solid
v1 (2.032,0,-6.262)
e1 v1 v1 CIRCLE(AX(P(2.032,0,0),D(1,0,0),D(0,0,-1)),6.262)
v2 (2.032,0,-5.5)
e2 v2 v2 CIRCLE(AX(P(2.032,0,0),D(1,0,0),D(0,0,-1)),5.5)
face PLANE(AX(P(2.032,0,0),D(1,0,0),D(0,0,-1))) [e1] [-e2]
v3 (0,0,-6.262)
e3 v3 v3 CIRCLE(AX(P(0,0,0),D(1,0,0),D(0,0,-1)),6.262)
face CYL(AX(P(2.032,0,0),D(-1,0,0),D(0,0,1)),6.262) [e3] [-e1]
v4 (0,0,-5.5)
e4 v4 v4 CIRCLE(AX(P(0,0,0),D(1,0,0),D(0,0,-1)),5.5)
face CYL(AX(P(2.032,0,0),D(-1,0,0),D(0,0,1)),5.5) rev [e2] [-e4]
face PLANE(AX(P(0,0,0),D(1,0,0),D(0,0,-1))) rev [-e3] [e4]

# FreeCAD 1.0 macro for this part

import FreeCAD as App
import Part
import Sketcher

V = App.Vector

doc = App.newDocument("Part")
body = doc.addObject("PartDesign::Body", "Body")

# Sketch on YZ plane
sketch1 = body.newObject("Sketcher::SketchObject", "Sketch")
sketch1.AttachmentSupport = (doc.getObject("YZ_Plane"), [""])
sketch1.MapMode = "FlatFace"
sketch1.addGeometry([
    Part.Circle(V(0, 0, 0), V(0, 0, 1), 6),
    Part.Circle(V(0, 0, 0), V(0, 0, 1), 6),
], False)
sketch1.addConstraint([
    Sketcher.Constraint("Coincident", 0, 3, -1, 1),
    Sketcher.Constraint("Coincident", 1, 3, -1, 1),
    Sketcher.Constraint("Diameter", 1, 11.0),
    Sketcher.Constraint("Diameter", 0, 12.524),
])
pad1 = body.newObject("PartDesign::Pad", "Pad")
pad1.Profile = sketch1
pad1.Length = 2.032

doc.recompute()
